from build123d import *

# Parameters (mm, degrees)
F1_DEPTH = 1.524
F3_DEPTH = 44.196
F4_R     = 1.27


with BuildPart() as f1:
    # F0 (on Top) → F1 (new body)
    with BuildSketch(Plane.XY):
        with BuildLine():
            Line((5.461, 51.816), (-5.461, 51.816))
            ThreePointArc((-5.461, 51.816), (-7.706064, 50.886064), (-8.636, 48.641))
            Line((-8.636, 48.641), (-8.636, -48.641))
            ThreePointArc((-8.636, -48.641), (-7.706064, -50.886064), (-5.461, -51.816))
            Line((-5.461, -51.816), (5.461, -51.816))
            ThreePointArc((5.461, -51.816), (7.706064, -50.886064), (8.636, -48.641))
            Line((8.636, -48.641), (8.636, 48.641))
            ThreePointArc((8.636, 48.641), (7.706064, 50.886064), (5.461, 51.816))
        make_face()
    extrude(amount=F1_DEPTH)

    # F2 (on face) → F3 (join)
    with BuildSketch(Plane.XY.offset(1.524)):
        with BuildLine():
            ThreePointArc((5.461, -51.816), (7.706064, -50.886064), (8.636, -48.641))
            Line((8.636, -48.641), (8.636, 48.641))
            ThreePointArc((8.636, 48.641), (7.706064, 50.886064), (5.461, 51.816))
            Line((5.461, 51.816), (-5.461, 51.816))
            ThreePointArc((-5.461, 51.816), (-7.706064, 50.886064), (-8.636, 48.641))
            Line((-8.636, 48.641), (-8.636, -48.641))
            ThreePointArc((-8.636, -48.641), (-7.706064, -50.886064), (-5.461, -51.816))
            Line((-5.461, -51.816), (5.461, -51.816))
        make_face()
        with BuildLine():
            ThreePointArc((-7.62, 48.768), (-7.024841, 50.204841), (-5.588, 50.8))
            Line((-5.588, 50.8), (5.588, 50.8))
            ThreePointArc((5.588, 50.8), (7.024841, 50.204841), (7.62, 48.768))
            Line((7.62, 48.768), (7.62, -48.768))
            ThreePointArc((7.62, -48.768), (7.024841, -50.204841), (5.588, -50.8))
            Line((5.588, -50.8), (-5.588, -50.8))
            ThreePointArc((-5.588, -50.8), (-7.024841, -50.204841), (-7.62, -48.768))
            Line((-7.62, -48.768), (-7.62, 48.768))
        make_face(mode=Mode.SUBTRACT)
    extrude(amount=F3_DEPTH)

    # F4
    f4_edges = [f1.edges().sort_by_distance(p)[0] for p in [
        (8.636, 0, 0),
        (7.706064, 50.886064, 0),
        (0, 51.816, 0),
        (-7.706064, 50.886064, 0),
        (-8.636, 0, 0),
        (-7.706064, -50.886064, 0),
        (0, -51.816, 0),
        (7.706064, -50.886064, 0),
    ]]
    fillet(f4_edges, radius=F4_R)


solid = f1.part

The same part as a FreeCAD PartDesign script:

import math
import FreeCAD as App
import Part
import Sketcher

V = App.Vector
Q = App.Units.Quantity


def edges_at(feature, points):
    """Names of the edges that pass closest to the given points."""
    edges = feature.Shape.Edges
    near = lambda p: min(range(len(edges)), key=lambda i: edges[i].distToShape(Part.Vertex(*p))[0])
    return sorted({f"Edge{near(p) + 1}" for p in points})

doc = App.newDocument("Part")
body = doc.addObject("PartDesign::Body", "Body")

# Sketch on XY plane
sketch1 = body.newObject("Sketcher::SketchObject", "Sketch")
sketch1.AttachmentSupport = (doc.getObject("XY_Plane"), [""])
sketch1.MapMode = "FlatFace"
sketch1.addGeometry(Part.LineSegment(V(5.5, 51.8, 0), V(-5.5, 51.8, 0)), False)
sketch1.addGeometry(Part.ArcOfCircle(Part.Circle(V(-5.5, 48.6, 0), V(0, 0, 1), 3.2), math.radians(90), math.radians(180)), False)
sketch1.addGeometry(Part.LineSegment(V(-8.6, 48.6, 0), V(-8.6, -48.6, 0)), False)
sketch1.addGeometry(Part.ArcOfCircle(Part.Circle(V(-5.5, -48.6, 0), V(0, 0, 1), 3.2), math.radians(-180), math.radians(-90)), False)
sketch1.addGeometry(Part.LineSegment(V(-5.5, -51.8, 0), V(5.5, -51.8, 0)), False)
sketch1.addGeometry(Part.ArcOfCircle(Part.Circle(V(5.5, -48.6, 0), V(0, 0, 1), 3.2), math.radians(-90), math.radians(0)), False)
sketch1.addGeometry(Part.LineSegment(V(8.6, -48.6, 0), V(8.6, 48.6, 0)), False)
sketch1.addGeometry(Part.ArcOfCircle(Part.Circle(V(5.5, 48.6, 0), V(0, 0, 1), 3.2), math.radians(0), math.radians(90)), False)
sketch1.addConstraint(Sketcher.Constraint("Tangent", 0, 2, 1, 1))
sketch1.addConstraint(Sketcher.Constraint("Tangent", 1, 2, 2, 1))
sketch1.addConstraint(Sketcher.Constraint("Tangent", 2, 2, 3, 1))
sketch1.addConstraint(Sketcher.Constraint("Tangent", 3, 2, 4, 1))
sketch1.addConstraint(Sketcher.Constraint("Tangent", 4, 2, 5, 1))
sketch1.addConstraint(Sketcher.Constraint("Tangent", 5, 2, 6, 1))
sketch1.addConstraint(Sketcher.Constraint("Tangent", 6, 2, 7, 1))
sketch1.addConstraint(Sketcher.Constraint("Tangent", 7, 2, 0, 1))
sketch1.addConstraint(Sketcher.Constraint("Horizontal", 0))
sketch1.addConstraint(Sketcher.Constraint("Vertical", 2))
sketch1.addConstraint(Sketcher.Constraint("Horizontal", 4))
sketch1.addConstraint(Sketcher.Constraint("Vertical", 6))
sketch1.addConstraint(Sketcher.Constraint("Equal", 1, 3))
sketch1.addConstraint(Sketcher.Constraint("Equal", 3, 5))
sketch1.addConstraint(Sketcher.Constraint("Equal", 5, 7))
sketch1.addConstraint(Sketcher.Constraint("Symmetric", 1, 3, 5, 3, -1, 1))
sketch1.addConstraint(Sketcher.Constraint("Radius", 1, Q("0.125 in")))
sketch1.addConstraint(Sketcher.Constraint("DistanceX", 0, 2, 0, 1, Q("0.43 in")))
sketch1.addConstraint(Sketcher.Constraint("DistanceY", 2, 2, 2, 1, Q("3.83 in")))
pad1 = body.newObject("PartDesign::Pad", "Pad")
pad1.Profile = sketch1
pad1.Length = Q("0.06 in")

# Sketch on XY plane
sketch2 = body.newObject("Sketcher::SketchObject", "Sketch001")
sketch2.AttachmentSupport = (doc.getObject("XY_Plane"), [""])
sketch2.MapMode = "FlatFace"
sketch2.AttachmentOffset = App.Placement(V(0, 0, 0.06 * 25.4), App.Rotation())
sketch2.addGeometry(Part.ArcOfCircle(Part.Circle(V(5.5, -48.6, 0), V(0, 0, 1), 3.2), math.radians(-90), math.radians(0)), False)
sketch2.addGeometry(Part.LineSegment(V(8.6, -48.6, 0), V(8.6, 48.6, 0)), False)
sketch2.addGeometry(Part.ArcOfCircle(Part.Circle(V(5.5, 48.6, 0), V(0, 0, 1), 3.2), math.radians(0), math.radians(90)), False)
sketch2.addGeometry(Part.LineSegment(V(5.5, 51.8, 0), V(-5.5, 51.8, 0)), False)
sketch2.addGeometry(Part.ArcOfCircle(Part.Circle(V(-5.5, 48.6, 0), V(0, 0, 1), 3.2), math.radians(90), math.radians(180)), False)
sketch2.addGeometry(Part.LineSegment(V(-8.6, 48.6, 0), V(-8.6, -48.6, 0)), False)
sketch2.addGeometry(Part.ArcOfCircle(Part.Circle(V(-5.5, -48.6, 0), V(0, 0, 1), 3.2), math.radians(-180), math.radians(-90)), False)
sketch2.addGeometry(Part.LineSegment(V(-5.5, -51.8, 0), V(5.5, -51.8, 0)), False)
sketch2.addGeometry(Part.LineSegment(V(-7.6, -48.8, 0), V(-7.6, 48.8, 0)), False)
sketch2.addGeometry(Part.ArcOfCircle(Part.Circle(V(-5.6, 48.8, 0), V(0, 0, 1), 2), math.radians(90), math.radians(180)), False)
sketch2.addGeometry(Part.LineSegment(V(-5.6, 50.8, 0), V(5.6, 50.8, 0)), False)
sketch2.addGeometry(Part.ArcOfCircle(Part.Circle(V(5.6, 48.8, 0), V(0, 0, 1), 2), math.radians(0), math.radians(90)), False)
sketch2.addGeometry(Part.LineSegment(V(7.6, 48.8, 0), V(7.6, -48.8, 0)), False)
sketch2.addGeometry(Part.ArcOfCircle(Part.Circle(V(5.6, -48.8, 0), V(0, 0, 1), 2), math.radians(-90), math.radians(0)), False)
sketch2.addGeometry(Part.LineSegment(V(5.6, -50.8, 0), V(-5.6, -50.8, 0)), False)
sketch2.addGeometry(Part.ArcOfCircle(Part.Circle(V(-5.6, -48.8, 0), V(0, 0, 1), 2), math.radians(180), math.radians(270)), False)
sketch2.addConstraint(Sketcher.Constraint("Tangent", 0, 2, 1, 1))
sketch2.addConstraint(Sketcher.Constraint("Tangent", 1, 2, 2, 1))
sketch2.addConstraint(Sketcher.Constraint("Tangent", 2, 2, 3, 1))
sketch2.addConstraint(Sketcher.Constraint("Tangent", 3, 2, 4, 1))
sketch2.addConstraint(Sketcher.Constraint("Tangent", 4, 2, 5, 1))
sketch2.addConstraint(Sketcher.Constraint("Tangent", 5, 2, 6, 1))
sketch2.addConstraint(Sketcher.Constraint("Tangent", 6, 2, 7, 1))
sketch2.addConstraint(Sketcher.Constraint("Tangent", 7, 2, 0, 1))
sketch2.addConstraint(Sketcher.Constraint("Tangent", 8, 2, 9, 2))
sketch2.addConstraint(Sketcher.Constraint("Tangent", 9, 1, 10, 1))
sketch2.addConstraint(Sketcher.Constraint("Tangent", 10, 2, 11, 2))
sketch2.addConstraint(Sketcher.Constraint("Tangent", 11, 1, 12, 1))
sketch2.addConstraint(Sketcher.Constraint("Tangent", 12, 2, 13, 2))
sketch2.addConstraint(Sketcher.Constraint("Tangent", 13, 1, 14, 1))
sketch2.addConstraint(Sketcher.Constraint("Tangent", 14, 2, 15, 2))
sketch2.addConstraint(Sketcher.Constraint("Tangent", 15, 1, 8, 1))
sketch2.addConstraint(Sketcher.Constraint("Vertical", 1))
sketch2.addConstraint(Sketcher.Constraint("Horizontal", 3))
sketch2.addConstraint(Sketcher.Constraint("Vertical", 5))
sketch2.addConstraint(Sketcher.Constraint("Horizontal", 7))
sketch2.addConstraint(Sketcher.Constraint("Vertical", 8))
sketch2.addConstraint(Sketcher.Constraint("Horizontal", 10))
sketch2.addConstraint(Sketcher.Constraint("Vertical", 12))
sketch2.addConstraint(Sketcher.Constraint("Horizontal", 14))
sketch2.addConstraint(Sketcher.Constraint("Equal", 0, 2))
sketch2.addConstraint(Sketcher.Constraint("Equal", 2, 4))
sketch2.addConstraint(Sketcher.Constraint("Equal", 4, 6))
sketch2.addConstraint(Sketcher.Constraint("Equal", 9, 11))
sketch2.addConstraint(Sketcher.Constraint("Equal", 11, 13))
sketch2.addConstraint(Sketcher.Constraint("Equal", 13, 15))
sketch2.addConstraint(Sketcher.Constraint("Symmetric", 0, 3, 4, 3, -1, 1))
sketch2.addConstraint(Sketcher.Constraint("Symmetric", 9, 3, 13, 3, -1, 1))
sketch2.addConstraint(Sketcher.Constraint("Radius", 9, Q("0.08 in")))
sketch2.addConstraint(Sketcher.Constraint("DistanceY", -1, 1, 9, 1, Q("2 in")))
sketch2.addConstraint(Sketcher.Constraint("Radius", 0, Q("0.125 in")))
sketch2.addConstraint(Sketcher.Constraint("DistanceX", 3, 2, 3, 1, Q("0.43 in")))
sketch2.addConstraint(Sketcher.Constraint("DistanceX", 10, 1, 10, 2, Q("0.44 in")))
sketch2.addConstraint(Sketcher.Constraint("DistanceY", 1, 1, 1, 2, Q("3.83 in")))
pad2 = body.newObject("PartDesign::Pad", "Pad001")
pad2.Profile = sketch2
pad2.Length = Q("1.74 in")
doc.recompute()

fillet = body.newObject("PartDesign::Fillet", "Fillet")
fillet.Base = (pad2, edges_at(pad2, [
    (8.636, 0, 0),
    (7.706, 50.886, 0),
    (0, 51.816, 0),
    (-7.706, 50.886, 0),
    (-8.636, 0, 0),
    (-7.706, -50.886, 0),
    (0, -51.816, 0),
    (7.706, -50.886, 0),
]))
fillet.Radius = Q("0.05 in")

doc.recompute()
